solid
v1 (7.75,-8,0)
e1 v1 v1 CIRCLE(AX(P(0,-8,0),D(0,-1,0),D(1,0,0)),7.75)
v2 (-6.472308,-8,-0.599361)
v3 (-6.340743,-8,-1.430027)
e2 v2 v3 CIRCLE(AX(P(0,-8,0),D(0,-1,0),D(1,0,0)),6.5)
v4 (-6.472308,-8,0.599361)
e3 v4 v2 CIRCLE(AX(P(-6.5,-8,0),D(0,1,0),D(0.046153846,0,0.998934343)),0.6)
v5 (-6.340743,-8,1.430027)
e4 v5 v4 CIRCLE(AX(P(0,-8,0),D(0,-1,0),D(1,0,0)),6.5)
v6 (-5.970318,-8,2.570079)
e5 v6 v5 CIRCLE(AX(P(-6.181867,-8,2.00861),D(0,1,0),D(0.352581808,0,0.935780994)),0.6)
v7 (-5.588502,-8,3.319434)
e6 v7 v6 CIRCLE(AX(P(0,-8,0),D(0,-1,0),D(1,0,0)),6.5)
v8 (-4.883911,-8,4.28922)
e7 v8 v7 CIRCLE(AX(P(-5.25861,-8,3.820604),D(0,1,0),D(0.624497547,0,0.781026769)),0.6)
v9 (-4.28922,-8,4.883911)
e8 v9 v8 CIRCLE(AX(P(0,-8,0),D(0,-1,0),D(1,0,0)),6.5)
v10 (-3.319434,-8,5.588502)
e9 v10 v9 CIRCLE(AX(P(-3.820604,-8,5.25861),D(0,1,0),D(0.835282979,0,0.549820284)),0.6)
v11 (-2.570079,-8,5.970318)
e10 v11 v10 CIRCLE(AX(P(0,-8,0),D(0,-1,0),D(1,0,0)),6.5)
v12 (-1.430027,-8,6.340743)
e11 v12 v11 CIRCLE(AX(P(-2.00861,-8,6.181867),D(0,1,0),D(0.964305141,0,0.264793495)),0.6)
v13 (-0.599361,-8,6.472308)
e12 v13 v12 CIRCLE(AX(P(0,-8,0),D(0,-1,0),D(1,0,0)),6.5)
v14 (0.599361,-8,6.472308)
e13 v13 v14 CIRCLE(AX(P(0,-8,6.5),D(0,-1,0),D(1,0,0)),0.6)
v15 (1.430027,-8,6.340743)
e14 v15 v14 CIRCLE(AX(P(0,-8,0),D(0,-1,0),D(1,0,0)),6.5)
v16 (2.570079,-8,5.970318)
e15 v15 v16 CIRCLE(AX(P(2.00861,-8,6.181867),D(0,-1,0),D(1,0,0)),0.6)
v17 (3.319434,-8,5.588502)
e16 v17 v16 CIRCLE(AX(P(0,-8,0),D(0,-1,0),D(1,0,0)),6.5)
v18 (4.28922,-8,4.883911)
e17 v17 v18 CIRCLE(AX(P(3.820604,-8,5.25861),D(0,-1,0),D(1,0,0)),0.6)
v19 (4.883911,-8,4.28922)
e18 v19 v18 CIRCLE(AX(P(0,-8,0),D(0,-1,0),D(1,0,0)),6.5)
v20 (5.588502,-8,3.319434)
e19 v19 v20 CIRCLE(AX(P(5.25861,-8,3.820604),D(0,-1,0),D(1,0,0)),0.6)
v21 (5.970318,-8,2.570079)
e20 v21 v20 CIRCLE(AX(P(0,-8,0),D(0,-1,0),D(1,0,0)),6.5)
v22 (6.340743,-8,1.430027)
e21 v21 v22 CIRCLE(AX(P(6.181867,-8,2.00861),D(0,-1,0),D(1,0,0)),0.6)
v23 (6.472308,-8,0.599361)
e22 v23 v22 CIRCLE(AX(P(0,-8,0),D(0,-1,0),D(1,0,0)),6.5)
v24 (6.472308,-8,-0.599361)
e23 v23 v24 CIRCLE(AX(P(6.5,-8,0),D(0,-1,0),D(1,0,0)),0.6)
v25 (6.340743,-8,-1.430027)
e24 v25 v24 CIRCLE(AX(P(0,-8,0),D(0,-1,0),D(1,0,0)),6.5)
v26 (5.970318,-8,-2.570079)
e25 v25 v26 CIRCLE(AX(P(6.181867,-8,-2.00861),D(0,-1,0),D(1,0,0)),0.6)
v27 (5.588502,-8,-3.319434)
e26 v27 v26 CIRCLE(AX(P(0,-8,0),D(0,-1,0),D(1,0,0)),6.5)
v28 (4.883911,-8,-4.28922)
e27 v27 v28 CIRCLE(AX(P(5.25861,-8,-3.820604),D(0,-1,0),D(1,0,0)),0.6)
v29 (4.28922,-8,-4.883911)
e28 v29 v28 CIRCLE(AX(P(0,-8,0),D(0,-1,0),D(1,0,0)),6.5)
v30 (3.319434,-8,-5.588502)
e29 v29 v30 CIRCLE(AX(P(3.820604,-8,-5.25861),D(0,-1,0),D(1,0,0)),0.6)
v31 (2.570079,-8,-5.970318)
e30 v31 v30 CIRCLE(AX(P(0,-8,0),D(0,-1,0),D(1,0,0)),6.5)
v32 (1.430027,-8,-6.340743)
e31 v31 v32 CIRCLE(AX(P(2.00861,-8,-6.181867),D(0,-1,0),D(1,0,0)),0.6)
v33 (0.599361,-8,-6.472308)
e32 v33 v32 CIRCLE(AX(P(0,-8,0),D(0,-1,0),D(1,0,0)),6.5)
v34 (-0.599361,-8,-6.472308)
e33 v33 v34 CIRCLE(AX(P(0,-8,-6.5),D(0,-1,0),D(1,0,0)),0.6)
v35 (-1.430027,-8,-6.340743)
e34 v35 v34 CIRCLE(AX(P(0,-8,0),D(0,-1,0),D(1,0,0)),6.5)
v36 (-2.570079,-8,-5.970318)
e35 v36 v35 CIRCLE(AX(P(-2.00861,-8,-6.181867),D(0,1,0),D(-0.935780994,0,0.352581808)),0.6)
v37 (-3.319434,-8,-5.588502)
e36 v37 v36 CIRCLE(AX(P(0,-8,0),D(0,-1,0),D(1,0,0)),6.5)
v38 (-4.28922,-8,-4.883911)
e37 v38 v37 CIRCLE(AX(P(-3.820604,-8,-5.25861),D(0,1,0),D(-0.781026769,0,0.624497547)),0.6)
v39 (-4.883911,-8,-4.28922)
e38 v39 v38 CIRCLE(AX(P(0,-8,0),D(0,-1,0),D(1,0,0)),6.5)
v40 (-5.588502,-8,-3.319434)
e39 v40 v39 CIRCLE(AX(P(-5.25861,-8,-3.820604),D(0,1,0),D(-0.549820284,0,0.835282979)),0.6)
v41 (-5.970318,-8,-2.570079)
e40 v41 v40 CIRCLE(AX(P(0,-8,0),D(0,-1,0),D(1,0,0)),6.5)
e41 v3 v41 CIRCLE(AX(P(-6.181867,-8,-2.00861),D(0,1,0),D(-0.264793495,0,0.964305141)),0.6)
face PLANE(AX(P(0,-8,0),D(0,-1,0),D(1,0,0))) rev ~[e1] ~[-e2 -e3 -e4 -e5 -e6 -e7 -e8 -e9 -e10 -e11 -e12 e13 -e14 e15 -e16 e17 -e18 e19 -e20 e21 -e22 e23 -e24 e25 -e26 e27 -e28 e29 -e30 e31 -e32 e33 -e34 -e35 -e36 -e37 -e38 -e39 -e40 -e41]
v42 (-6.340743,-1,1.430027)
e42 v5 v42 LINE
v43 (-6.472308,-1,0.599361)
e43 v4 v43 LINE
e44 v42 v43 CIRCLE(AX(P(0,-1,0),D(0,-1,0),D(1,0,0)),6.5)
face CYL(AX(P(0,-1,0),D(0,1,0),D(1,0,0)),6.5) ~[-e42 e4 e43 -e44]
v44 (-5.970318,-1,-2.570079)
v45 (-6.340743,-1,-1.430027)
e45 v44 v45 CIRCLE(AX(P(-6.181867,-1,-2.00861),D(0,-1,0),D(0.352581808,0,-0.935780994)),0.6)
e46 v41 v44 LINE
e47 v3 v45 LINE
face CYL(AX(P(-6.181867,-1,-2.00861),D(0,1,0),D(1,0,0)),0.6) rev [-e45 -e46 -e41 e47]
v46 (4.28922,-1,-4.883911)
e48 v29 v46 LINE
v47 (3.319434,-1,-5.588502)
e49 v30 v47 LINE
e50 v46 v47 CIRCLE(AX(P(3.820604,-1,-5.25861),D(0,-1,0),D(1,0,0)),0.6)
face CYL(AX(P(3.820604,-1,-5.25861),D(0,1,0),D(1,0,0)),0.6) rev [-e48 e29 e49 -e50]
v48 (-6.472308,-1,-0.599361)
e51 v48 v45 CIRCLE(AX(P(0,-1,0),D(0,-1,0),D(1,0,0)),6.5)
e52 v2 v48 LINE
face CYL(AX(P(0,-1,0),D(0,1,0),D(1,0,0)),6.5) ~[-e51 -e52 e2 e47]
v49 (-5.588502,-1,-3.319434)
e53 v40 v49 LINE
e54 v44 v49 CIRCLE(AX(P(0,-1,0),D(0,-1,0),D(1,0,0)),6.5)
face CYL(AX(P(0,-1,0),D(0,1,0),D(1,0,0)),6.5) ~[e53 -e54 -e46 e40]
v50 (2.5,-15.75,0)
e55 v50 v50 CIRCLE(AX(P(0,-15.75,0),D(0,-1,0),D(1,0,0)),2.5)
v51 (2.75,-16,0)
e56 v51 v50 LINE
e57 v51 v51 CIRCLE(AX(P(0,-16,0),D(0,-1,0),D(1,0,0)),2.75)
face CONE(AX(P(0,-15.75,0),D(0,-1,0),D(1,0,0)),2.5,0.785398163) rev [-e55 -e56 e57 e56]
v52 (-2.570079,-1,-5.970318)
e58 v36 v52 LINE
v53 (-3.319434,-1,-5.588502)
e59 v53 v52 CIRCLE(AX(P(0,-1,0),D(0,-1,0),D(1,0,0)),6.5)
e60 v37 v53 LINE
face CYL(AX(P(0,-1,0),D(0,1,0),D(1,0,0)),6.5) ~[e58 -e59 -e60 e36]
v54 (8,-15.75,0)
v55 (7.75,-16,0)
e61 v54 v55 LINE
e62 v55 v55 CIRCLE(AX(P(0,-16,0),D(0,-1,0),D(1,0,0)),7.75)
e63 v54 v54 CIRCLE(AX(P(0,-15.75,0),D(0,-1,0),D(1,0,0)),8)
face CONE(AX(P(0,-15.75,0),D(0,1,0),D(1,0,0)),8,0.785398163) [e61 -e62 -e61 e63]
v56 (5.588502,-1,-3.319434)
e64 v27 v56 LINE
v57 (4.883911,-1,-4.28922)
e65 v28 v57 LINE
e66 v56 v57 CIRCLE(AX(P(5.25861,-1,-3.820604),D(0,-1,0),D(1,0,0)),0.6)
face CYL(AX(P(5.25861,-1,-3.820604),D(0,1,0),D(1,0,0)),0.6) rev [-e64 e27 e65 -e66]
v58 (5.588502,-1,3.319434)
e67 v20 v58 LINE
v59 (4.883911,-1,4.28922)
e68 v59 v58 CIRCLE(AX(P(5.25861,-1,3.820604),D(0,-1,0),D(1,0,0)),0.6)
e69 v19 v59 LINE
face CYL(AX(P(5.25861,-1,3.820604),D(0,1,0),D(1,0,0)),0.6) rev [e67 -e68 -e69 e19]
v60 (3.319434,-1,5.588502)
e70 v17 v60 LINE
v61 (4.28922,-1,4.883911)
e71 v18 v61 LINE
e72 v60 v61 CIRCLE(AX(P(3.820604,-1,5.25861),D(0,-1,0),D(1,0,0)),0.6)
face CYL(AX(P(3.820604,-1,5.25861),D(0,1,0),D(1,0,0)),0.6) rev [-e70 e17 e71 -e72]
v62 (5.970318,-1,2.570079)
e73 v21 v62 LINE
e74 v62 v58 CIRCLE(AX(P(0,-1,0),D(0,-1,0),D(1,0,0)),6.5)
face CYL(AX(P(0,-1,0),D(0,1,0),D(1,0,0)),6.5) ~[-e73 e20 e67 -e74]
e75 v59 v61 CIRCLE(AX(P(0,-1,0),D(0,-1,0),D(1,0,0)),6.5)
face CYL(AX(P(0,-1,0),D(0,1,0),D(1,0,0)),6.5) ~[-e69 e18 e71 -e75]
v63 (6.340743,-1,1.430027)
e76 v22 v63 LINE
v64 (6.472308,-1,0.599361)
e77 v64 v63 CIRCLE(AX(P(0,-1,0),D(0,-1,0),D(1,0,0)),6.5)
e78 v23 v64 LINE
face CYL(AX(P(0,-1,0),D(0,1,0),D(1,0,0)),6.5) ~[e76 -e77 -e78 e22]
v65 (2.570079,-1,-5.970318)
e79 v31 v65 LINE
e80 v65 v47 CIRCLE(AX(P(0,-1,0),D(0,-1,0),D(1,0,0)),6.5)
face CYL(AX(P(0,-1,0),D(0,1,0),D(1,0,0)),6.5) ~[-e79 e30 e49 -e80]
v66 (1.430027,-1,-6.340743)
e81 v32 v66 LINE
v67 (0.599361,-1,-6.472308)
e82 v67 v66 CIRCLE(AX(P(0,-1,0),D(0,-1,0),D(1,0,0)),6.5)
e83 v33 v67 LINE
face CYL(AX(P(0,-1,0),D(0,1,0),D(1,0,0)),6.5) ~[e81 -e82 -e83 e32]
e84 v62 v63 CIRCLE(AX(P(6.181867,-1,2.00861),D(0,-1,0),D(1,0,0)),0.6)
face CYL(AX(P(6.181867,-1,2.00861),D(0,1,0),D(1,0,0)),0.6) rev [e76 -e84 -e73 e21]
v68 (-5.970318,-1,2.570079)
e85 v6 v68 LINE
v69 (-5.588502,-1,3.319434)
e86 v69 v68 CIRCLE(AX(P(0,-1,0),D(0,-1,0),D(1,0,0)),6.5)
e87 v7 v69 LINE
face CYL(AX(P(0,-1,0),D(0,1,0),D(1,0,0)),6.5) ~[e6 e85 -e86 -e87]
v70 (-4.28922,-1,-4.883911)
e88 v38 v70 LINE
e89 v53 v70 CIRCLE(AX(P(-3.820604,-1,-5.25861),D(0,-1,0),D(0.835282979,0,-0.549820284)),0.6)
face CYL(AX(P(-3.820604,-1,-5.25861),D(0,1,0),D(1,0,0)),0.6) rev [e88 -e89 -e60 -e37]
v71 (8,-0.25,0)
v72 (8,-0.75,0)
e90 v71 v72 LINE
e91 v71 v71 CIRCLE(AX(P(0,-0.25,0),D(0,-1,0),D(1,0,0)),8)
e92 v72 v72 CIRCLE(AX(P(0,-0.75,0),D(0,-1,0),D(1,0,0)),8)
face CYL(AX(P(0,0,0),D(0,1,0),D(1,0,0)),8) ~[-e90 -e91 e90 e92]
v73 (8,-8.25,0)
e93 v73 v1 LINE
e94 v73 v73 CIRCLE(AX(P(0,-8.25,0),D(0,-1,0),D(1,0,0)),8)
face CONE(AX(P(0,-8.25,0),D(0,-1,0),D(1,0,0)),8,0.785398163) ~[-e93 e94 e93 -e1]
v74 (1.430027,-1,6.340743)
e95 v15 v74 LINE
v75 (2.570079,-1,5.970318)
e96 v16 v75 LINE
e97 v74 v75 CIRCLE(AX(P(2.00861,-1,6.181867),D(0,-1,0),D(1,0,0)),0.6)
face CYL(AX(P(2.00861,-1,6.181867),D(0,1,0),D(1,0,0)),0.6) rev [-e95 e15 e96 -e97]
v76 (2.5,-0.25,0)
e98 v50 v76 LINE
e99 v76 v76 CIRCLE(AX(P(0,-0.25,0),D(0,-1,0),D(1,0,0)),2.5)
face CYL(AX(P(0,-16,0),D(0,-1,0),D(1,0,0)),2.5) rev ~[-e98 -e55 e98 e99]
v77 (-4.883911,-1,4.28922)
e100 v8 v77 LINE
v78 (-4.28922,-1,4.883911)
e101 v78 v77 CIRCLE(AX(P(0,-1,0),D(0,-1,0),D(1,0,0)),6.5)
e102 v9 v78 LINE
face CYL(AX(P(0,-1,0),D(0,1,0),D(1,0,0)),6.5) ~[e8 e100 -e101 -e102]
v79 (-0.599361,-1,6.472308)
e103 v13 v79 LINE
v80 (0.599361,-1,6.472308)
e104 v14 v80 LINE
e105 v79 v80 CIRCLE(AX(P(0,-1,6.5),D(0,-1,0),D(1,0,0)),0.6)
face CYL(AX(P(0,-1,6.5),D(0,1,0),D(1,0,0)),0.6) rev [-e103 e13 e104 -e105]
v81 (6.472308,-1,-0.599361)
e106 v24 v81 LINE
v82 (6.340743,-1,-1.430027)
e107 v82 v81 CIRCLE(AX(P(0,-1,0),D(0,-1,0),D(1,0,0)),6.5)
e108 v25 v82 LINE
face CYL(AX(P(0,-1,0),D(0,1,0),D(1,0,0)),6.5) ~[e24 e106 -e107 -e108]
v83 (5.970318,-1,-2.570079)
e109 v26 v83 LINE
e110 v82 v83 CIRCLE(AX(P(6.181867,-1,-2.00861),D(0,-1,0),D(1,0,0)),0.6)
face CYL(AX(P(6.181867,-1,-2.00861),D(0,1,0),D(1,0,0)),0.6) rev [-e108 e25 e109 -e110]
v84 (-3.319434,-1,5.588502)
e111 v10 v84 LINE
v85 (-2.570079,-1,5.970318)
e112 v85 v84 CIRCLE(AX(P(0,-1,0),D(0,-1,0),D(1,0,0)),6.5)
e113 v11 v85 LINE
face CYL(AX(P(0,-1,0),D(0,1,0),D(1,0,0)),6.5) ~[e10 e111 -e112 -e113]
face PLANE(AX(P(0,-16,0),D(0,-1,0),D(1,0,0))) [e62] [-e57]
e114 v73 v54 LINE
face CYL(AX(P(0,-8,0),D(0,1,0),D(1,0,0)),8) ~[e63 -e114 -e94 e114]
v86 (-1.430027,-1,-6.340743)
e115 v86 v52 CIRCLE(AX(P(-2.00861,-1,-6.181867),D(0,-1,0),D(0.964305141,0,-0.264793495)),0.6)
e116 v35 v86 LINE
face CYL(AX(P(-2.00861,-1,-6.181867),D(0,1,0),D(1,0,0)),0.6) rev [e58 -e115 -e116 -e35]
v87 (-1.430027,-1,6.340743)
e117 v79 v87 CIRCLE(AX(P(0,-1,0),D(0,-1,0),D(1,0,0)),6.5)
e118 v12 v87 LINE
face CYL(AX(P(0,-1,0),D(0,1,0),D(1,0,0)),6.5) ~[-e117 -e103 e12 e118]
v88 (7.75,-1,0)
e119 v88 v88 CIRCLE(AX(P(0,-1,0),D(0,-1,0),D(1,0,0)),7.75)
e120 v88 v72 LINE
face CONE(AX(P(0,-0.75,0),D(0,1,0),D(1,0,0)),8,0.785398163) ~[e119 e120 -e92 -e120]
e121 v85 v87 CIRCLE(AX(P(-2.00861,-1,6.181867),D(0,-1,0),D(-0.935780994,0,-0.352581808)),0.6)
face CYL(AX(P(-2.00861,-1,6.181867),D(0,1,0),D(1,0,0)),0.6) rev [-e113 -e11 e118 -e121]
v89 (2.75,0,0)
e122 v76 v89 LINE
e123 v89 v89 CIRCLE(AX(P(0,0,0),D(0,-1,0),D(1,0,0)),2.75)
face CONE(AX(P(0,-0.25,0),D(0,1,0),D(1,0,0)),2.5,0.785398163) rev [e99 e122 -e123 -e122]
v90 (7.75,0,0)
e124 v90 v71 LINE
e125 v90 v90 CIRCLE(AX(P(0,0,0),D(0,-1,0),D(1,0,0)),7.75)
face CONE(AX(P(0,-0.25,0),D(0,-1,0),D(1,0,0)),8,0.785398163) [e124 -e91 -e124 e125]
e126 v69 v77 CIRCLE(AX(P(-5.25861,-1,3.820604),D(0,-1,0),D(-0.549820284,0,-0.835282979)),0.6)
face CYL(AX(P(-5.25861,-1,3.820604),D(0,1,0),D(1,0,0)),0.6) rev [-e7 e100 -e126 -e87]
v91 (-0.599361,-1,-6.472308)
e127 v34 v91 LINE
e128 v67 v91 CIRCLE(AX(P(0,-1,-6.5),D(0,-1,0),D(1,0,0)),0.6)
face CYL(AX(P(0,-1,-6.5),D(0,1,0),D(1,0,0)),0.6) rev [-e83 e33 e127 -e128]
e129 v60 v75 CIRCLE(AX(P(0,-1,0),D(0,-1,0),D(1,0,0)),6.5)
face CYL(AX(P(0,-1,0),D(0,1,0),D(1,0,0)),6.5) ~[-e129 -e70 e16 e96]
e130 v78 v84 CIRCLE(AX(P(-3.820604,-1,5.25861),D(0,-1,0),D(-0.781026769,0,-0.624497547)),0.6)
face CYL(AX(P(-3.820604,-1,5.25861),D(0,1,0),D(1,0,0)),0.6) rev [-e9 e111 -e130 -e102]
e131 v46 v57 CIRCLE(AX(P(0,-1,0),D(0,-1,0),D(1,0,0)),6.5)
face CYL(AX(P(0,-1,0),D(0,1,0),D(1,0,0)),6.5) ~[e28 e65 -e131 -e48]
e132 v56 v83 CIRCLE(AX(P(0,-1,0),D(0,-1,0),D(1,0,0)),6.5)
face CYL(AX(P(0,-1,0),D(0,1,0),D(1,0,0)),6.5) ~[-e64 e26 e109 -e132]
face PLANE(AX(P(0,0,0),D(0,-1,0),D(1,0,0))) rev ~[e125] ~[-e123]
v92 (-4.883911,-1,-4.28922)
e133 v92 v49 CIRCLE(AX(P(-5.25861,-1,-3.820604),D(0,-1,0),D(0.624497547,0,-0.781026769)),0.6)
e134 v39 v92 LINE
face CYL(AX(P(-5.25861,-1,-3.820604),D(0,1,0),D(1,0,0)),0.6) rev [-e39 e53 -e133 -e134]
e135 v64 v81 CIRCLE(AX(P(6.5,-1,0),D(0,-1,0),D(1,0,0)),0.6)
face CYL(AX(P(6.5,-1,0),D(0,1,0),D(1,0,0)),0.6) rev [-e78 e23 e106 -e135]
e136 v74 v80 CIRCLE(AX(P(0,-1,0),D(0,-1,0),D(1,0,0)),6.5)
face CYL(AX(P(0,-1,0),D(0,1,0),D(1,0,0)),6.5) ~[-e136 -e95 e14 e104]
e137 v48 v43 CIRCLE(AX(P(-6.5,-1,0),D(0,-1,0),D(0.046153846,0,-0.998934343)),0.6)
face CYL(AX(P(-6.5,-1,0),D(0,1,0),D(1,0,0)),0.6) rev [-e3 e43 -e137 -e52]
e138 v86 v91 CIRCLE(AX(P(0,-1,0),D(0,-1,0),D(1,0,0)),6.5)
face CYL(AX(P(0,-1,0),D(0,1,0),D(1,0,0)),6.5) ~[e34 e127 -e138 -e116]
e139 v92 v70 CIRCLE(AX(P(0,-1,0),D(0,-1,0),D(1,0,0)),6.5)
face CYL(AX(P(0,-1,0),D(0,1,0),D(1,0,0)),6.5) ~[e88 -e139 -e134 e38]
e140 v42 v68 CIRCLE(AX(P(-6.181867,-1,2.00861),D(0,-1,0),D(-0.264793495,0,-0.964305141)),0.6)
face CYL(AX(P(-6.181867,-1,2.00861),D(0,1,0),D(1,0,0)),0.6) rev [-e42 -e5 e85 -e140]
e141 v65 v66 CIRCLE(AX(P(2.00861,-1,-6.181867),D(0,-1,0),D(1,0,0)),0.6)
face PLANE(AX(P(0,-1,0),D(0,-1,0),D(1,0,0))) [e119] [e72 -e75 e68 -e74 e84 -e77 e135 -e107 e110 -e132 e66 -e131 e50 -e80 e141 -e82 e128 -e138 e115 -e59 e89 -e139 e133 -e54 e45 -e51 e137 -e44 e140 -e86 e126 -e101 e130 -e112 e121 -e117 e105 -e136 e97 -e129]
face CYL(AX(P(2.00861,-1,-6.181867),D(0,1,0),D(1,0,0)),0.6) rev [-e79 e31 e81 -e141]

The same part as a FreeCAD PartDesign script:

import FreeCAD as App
import Part
import Sketcher

V = App.Vector
Q = App.Units.Quantity


def edges_at(feature, points):
    """Names of the edges that pass closest to the given points."""
    edges = feature.Shape.Edges
    near = lambda p: min(range(len(edges)), key=lambda i: edges[i].distToShape(Part.Vertex(*p))[0])
    return sorted({f"Edge{near(p) + 1}" for p in points})

doc = App.newDocument("Part")
body = doc.addObject("PartDesign::Body", "Body")

# Sketch on XZ plane
sketch1 = body.newObject("Sketcher::SketchObject", "Sketch")
sketch1.AttachmentSupport = (doc.getObject("XZ_Plane"), [""])
sketch1.MapMode = "FlatFace"
sketch1.addGeometry(Part.Circle(V(0, 0, 0), V(0, 0, 1), 8), False)
sketch1.addConstraint([
    Sketcher.Constraint("Coincident", 0, 3, -1, 1),
    Sketcher.Constraint("Diameter", 0, Q("16 mm")),
])
pad1 = body.newObject("PartDesign::Pad", "Pad")
pad1.Profile = sketch1
pad1.Length = 1

# Sketch on XZ plane
sketch2 = body.newObject("Sketcher::SketchObject", "Sketch001")
sketch2.AttachmentSupport = (doc.getObject("XZ_Plane"), [""])
sketch2.MapMode = "FlatFace"
sketch2.AttachmentOffset = App.Placement(V(0, 0, 1), App.Rotation())
sketch2.addGeometry(Part.Circle(V(0, 0, 0), V(0, 0, 1), 6), False)
sketch2.addConstraint([
    Sketcher.Constraint("Coincident", 0, 3, -1, 1),
    Sketcher.Constraint("Diameter", 0, Q("13 mm")),
])
pad2 = body.newObject("PartDesign::Pad", "Pad001")
pad2.Profile = sketch2
pad2.Length = 7

# Sketch on XZ plane
sketch3 = body.newObject("Sketcher::SketchObject", "Sketch002")
sketch3.AttachmentSupport = (doc.getObject("XZ_Plane"), [""])
sketch3.MapMode = "FlatFace"
sketch3.AttachmentOffset = App.Placement(V(0, 0, 8), App.Rotation())
sketch3.addGeometry(Part.Circle(V(0, 0, 0), V(0, 0, 1), 8), False)
sketch3.addConstraint([
    Sketcher.Constraint("Coincident", 0, 3, -1, 1),
    Sketcher.Constraint("Diameter", 0, Q("16 mm")),
])
pad3 = body.newObject("PartDesign::Pad", "Pad002")
pad3.Profile = sketch3
pad3.Length = 8

# Sketch on XZ plane
sketch4 = body.newObject("Sketcher::SketchObject", "Sketch003")
sketch4.AttachmentSupport = (doc.getObject("XZ_Plane"), [""])
sketch4.MapMode = "FlatFace"
sketch4.AttachmentOffset = App.Placement(V(0, 0, 1), App.Rotation())
sketch4.addGeometry([
    Part.Circle(V(0, 6.5, 0), V(0, 0, 1), 0.6),  # 0
    Part.Circle(V(-2, 6.2, 0), V(0, 0, 1), 0.6),  # 1
    Part.Circle(V(-3.8, 5.3, 0), V(0, 0, 1), 0.6),  # 2
    Part.Circle(V(-5.3, 3.8, 0), V(0, 0, 1), 0.6),  # 3
    Part.Circle(V(-6.2, 2, 0), V(0, 0, 1), 0.6),  # 4
    Part.Circle(V(-6.5, 0, 0), V(0, 0, 1), 0.6),  # 5
    Part.Circle(V(-6.2, -2, 0), V(0, 0, 1), 0.6),  # 6
    Part.Circle(V(-5.3, -3.8, 0), V(0, 0, 1), 0.6),  # 7
    Part.Circle(V(-3.8, -5.3, 0), V(0, 0, 1), 0.6),  # 8
    Part.Circle(V(-2, -6.2, 0), V(0, 0, 1), 0.6),  # 9
    Part.Circle(V(0, -6.5, 0), V(0, 0, 1), 0.6),  # 10
    Part.Circle(V(2, -6.2, 0), V(0, 0, 1), 0.6),  # 11
    Part.Circle(V(3.8, -5.3, 0), V(0, 0, 1), 0.6),  # 12
    Part.Circle(V(5.3, -3.8, 0), V(0, 0, 1), 0.6),  # 13
    Part.Circle(V(6.2, -2, 0), V(0, 0, 1), 0.6),  # 14
    Part.Circle(V(6.5, 0, 0), V(0, 0, 1), 0.6),  # 15
    Part.Circle(V(6.2, 2, 0), V(0, 0, 1), 0.6),  # 16
    Part.Circle(V(5.3, 3.8, 0), V(0, 0, 1), 0.6),  # 17
    Part.Circle(V(3.8, 5.3, 0), V(0, 0, 1), 0.6),  # 18
    Part.Circle(V(2, 6.2, 0), V(0, 0, 1), 0.6),  # 19
], False)
sketch4.addConstraint([
    Sketcher.Constraint("Equal", 0, 1),
    Sketcher.Constraint("Equal", 1, 2),
    Sketcher.Constraint("Equal", 2, 3),
    Sketcher.Constraint("Equal", 3, 4),
    Sketcher.Constraint("Equal", 4, 5),
    Sketcher.Constraint("Equal", 5, 6),
    Sketcher.Constraint("Equal", 6, 7),
    Sketcher.Constraint("Equal", 7, 8),
    Sketcher.Constraint("Equal", 8, 9),
    Sketcher.Constraint("Equal", 9, 10),
    Sketcher.Constraint("Equal", 10, 11),
    Sketcher.Constraint("Equal", 11, 12),
    Sketcher.Constraint("Equal", 12, 13),
    Sketcher.Constraint("Equal", 13, 14),
    Sketcher.Constraint("Equal", 14, 15),
    Sketcher.Constraint("Equal", 15, 16),
    Sketcher.Constraint("Equal", 16, 17),
    Sketcher.Constraint("Equal", 17, 18),
    Sketcher.Constraint("Equal", 18, 19),
    Sketcher.Constraint("Symmetric", 0, 3, 10, 3, -1, 1),
    Sketcher.Constraint("Symmetric", 1, 3, 11, 3, -1, 1),
    Sketcher.Constraint("Symmetric", 2, 3, 12, 3, -1, 1),
    Sketcher.Constraint("Symmetric", 3, 3, 13, 3, -1, 1),
    Sketcher.Constraint("Symmetric", 4, 3, 14, 3, -1, 1),
    Sketcher.Constraint("Symmetric", 5, 3, 15, 3, -1, 1),
    Sketcher.Constraint("Symmetric", 6, 3, 16, 3, -1, 1),
    Sketcher.Constraint("Symmetric", 7, 3, 17, 3, -1, 1),
    Sketcher.Constraint("Symmetric", 8, 3, 18, 3, -1, 1),
    Sketcher.Constraint("Symmetric", 9, 3, 19, 3, -1, 1),
    Sketcher.Constraint("Symmetric", 9, 3, 11, 3, -2),
    Sketcher.Constraint("Symmetric", 8, 3, 12, 3, -2),
    Sketcher.Constraint("Symmetric", 7, 3, 13, 3, -2),
    Sketcher.Constraint("Symmetric", 6, 3, 14, 3, -2),
    Sketcher.Constraint("PointOnObject", 0, 3, -2),
    Sketcher.Constraint("PointOnObject", 5, 3, -1),
    Sketcher.Constraint("Diameter", 0, Q("1.2 mm")),
    Sketcher.Constraint("DistanceY", -1, 1, 0, 3, Q("6.5 mm")),
    Sketcher.Constraint("DistanceX", 5, 3, -1, 1, Q("6.5 mm")),
    Sketcher.Constraint("DistanceX", 3, 3, 1, 3, Q("3.25 mm")),
    Sketcher.Constraint("DistanceY", 4, 3, 2, 3, Q("3.25 mm")),
    Sketcher.Constraint("DistanceX", 1, 3, -1, 1, Q("2.00861 mm")),
    Sketcher.Constraint("DistanceY", -1, 1, 2, 3, Q("5.25861 mm")),
    Sketcher.Constraint("DistanceY", -1, 1, 1, 3, Q("6.181867 mm")),
    Sketcher.Constraint("DistanceX", 2, 3, -1, 1, Q("3.820604 mm")),
    Sketcher.Constraint("DistanceY", -1, 1, 3, 3, Q("3.820604 mm")),
    Sketcher.Constraint("DistanceX", 4, 3, -1, 1, Q("6.181867 mm")),
])
pocket1 = body.newObject("PartDesign::Pocket", "Pocket")
pocket1.Profile = sketch4
pocket1.Length = 7
pocket1.Reversed = True

# Sketch on XZ plane
sketch5 = body.newObject("Sketcher::SketchObject", "Sketch004")
sketch5.AttachmentSupport = (doc.getObject("XZ_Plane"), [""])
sketch5.MapMode = "FlatFace"
sketch5.AttachmentOffset = App.Placement(V(0, 0, 16), App.Rotation())
sketch5.addGeometry(Part.Circle(V(0, 0, 0), V(0, 0, 1), 2.5), False)
sketch5.addConstraint([
    Sketcher.Constraint("Coincident", 0, 3, -1, 1),
    Sketcher.Constraint("Diameter", 0, Q("5 mm")),
])
pocket2 = body.newObject("PartDesign::Pocket", "Pocket001")
pocket2.Profile = sketch5
pocket2.Type = "ThroughAll"
doc.recompute()

chamfer = body.newObject("PartDesign::Chamfer", "Chamfer")
chamfer.Base = (pocket2, edges_at(pocket2, [
    (8, -12, 0),
    (-8, -8, 0),
    (-8, -16, 0),
    (8, -0.5, 0),
    (-8, 0, 0),
    (-8, -1, 0),
    (-2.5, -16, 0),
    (2.5, -8, 0),
    (-2.5, 0, 0),
]))
chamfer.Size = 0.25

doc.recompute()
